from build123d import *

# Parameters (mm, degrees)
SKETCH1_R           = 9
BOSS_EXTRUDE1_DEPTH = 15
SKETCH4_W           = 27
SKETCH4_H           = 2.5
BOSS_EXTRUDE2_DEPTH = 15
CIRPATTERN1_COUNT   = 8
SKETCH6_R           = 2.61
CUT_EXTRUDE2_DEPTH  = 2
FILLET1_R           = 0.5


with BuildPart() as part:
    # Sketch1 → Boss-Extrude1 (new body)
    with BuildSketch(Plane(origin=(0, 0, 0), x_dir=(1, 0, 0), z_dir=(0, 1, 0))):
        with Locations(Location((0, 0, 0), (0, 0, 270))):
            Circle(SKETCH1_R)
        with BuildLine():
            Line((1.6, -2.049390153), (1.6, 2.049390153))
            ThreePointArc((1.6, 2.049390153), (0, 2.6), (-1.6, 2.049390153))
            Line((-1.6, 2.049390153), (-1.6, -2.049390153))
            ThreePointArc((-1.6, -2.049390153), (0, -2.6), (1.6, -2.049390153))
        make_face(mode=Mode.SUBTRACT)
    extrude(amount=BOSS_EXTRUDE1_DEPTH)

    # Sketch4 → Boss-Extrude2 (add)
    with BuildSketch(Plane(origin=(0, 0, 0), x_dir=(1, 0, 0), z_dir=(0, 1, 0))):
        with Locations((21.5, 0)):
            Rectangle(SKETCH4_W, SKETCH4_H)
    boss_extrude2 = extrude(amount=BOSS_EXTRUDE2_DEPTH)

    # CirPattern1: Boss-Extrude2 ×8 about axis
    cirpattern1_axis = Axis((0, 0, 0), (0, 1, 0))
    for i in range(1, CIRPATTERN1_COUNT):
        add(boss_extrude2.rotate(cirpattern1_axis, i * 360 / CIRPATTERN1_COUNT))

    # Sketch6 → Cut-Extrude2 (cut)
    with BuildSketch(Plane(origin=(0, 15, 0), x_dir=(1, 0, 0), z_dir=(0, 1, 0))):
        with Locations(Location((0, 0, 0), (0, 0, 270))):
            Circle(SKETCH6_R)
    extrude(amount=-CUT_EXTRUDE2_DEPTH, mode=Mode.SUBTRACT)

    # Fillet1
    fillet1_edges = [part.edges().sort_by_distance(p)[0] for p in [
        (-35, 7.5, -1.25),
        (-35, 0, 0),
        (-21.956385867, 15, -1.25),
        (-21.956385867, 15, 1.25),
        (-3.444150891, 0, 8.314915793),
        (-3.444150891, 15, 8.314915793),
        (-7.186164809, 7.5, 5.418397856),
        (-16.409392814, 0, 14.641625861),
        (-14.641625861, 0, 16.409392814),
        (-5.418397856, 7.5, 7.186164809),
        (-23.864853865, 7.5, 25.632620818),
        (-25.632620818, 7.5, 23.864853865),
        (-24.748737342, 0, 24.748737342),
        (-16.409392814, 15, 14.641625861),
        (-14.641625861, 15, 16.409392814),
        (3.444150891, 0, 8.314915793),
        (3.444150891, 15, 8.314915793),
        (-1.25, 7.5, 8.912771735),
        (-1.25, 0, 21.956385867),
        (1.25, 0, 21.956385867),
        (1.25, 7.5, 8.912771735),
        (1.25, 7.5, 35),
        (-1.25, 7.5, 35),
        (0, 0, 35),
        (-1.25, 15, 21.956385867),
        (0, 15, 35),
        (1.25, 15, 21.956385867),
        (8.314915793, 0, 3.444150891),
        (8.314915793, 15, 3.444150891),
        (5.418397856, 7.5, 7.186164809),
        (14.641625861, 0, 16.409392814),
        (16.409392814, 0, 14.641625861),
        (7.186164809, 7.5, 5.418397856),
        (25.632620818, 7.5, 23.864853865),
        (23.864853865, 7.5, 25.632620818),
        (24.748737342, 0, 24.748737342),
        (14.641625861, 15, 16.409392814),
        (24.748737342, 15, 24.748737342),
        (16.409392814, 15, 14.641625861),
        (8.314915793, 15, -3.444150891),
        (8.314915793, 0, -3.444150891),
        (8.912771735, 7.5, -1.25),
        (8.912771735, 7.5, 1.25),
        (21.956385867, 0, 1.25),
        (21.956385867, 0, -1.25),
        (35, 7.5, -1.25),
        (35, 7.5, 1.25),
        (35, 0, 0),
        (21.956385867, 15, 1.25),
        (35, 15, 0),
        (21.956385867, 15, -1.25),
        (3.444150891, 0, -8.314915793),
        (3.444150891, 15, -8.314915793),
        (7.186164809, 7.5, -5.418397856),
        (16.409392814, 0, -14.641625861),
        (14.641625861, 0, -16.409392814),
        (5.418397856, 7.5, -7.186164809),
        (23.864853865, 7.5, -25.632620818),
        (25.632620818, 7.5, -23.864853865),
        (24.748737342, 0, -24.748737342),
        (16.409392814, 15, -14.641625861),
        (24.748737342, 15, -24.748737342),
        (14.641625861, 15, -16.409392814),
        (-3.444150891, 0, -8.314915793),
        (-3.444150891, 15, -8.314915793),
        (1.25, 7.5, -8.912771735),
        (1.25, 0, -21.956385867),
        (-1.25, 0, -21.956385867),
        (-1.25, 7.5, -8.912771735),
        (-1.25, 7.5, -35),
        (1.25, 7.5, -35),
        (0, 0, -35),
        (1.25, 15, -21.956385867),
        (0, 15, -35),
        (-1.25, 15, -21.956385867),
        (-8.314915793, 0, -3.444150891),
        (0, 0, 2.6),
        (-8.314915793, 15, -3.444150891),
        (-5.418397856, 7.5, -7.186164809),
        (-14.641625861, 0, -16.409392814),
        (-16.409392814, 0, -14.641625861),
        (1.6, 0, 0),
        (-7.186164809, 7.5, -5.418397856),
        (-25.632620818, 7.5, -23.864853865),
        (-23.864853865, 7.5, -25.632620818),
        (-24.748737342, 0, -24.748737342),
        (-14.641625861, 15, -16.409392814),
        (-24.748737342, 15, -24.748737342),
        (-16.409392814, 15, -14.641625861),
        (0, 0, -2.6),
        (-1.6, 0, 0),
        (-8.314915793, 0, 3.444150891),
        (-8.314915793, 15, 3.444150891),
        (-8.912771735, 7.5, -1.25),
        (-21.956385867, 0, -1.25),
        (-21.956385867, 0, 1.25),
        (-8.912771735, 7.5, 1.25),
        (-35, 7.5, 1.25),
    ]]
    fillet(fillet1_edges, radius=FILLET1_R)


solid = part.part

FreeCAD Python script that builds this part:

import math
import FreeCAD as App
import Part
import Sketcher

V = App.Vector
Q = App.Units.Quantity


def edges_at(feature, points):
    """Names of the edges that pass closest to the given points."""
    edges = feature.Shape.Edges
    near = lambda p: min(range(len(edges)), key=lambda i: edges[i].distToShape(Part.Vertex(*p))[0])
    return sorted({f"Edge{near(p) + 1}" for p in points})

doc = App.newDocument("Part")
body = doc.addObject("PartDesign::Body", "Body")

sketch1 = body.newObject("Sketcher::SketchObject", "Sketch")
sketch1.AttachmentSupport = (doc.getObject("XZ_Plane"), [""])
sketch1.MapMode = "FlatFace"
sketch1.addGeometry([
    Part.Circle(V(0, 0, 0), V(0, 0, 1), 9),
    Part.LineSegment(V(1.6, -2, 0), V(1.6, 2, 0)),
    Part.ArcOfCircle(Part.Circle(V(0, 0, 0), V(0, 0, 1), 2.6), math.radians(52), math.radians(128)),
    Part.LineSegment(V(-1.6, 2, 0), V(-1.6, -2, 0)),
    Part.ArcOfCircle(Part.Circle(V(0, 0, 0), V(0, 0, 1), 2.6), math.radians(-128), math.radians(-52)),
], False)
sketch1.addConstraint([
    Sketcher.Constraint("Coincident", 1, 2, 2, 1),
    Sketcher.Constraint("Coincident", 2, 2, 3, 1),
    Sketcher.Constraint("Coincident", 3, 2, 4, 1),
    Sketcher.Constraint("Coincident", 4, 2, 1, 1),
    Sketcher.Constraint("Vertical", 1),
    Sketcher.Constraint("Vertical", 3),
    Sketcher.Constraint("Coincident", 0, 3, -1, 1),
    Sketcher.Constraint("Coincident", 2, 3, -1, 1),
    Sketcher.Constraint("Coincident", 4, 3, -1, 1),
    Sketcher.Constraint("Equal", 2, 4),
    Sketcher.Constraint("Horizontal", 1, 2, 2, 2),
    Sketcher.Constraint("Diameter", 0, Q("18 mm")),
    Sketcher.Constraint("Radius", 2, Q("2.6 mm")),
    Sketcher.Constraint("DistanceX", -1, 1, 1, 2, Q("1.6 mm")),
])
pad1 = body.newObject("PartDesign::Pad", "Pad")
pad1.Profile = sketch1
pad1.Length = 15
pad1.Reversed = True

sketch2 = body.newObject("Sketcher::SketchObject", "Sketch001")
sketch2.AttachmentSupport = (doc.getObject("XZ_Plane"), [""])
sketch2.MapMode = "FlatFace"
sketch2.addGeometry([
    Part.LineSegment(V(8, -1.2, 0), V(8, 1.2, 0)),
    Part.LineSegment(V(8, 1.2, 0), V(35, 1.2, 0)),
    Part.LineSegment(V(35, 1.2, 0), V(35, -1.2, 0)),
    Part.LineSegment(V(35, -1.2, 0), V(8, -1.2, 0)),
], False)
sketch2.addConstraint([
    Sketcher.Constraint("Coincident", 0, 2, 1, 1),
    Sketcher.Constraint("Coincident", 1, 2, 2, 1),
    Sketcher.Constraint("Coincident", 2, 2, 3, 1),
    Sketcher.Constraint("Coincident", 3, 2, 0, 1),
    Sketcher.Constraint("Vertical", 0),
    Sketcher.Constraint("Horizontal", 1),
    Sketcher.Constraint("Vertical", 2),
    Sketcher.Constraint("Horizontal", 3),
    Sketcher.Constraint("DistanceX", 1, 1, 1, 2, Q("27 mm")),
    Sketcher.Constraint("DistanceY", 0, 1, 0, 2, Q("2.5 mm")),
    Sketcher.Constraint("DistanceX", -1, 1, 0, 2, Q("8 mm")),
    Sketcher.Constraint("DistanceY", -1, 1, 0, 2, Q("1.25 mm")),
])
pad2 = body.newObject("PartDesign::Pad", "Pad001")
pad2.Profile = sketch2
pad2.Length = 15
pad2.Reversed = True
doc.recompute()

polarpattern = body.newObject("PartDesign::PolarPattern", "PolarPattern")
polarpattern.Originals = [pad2]
polarpattern.Axis = (doc.getObject("Y_Axis"), [""])
polarpattern.Angle = 360
polarpattern.Occurrences = 8
body.Tip = polarpattern

sketch3 = body.newObject("Sketcher::SketchObject", "Sketch002")
sketch3.AttachmentSupport = (doc.getObject("XZ_Plane"), [""])
sketch3.MapMode = "FlatFace"
sketch3.AttachmentOffset = App.Placement(V(0, 0, -15), App.Rotation())
sketch3.addGeometry(Part.Circle(V(0, 0, 0), V(0, 0, 1), 2.6), False)
sketch3.addConstraint([
    Sketcher.Constraint("Coincident", 0, 3, -1, 1),
    Sketcher.Constraint("Diameter", 0, Q("5.22 mm")),
])
pocket1 = body.newObject("PartDesign::Pocket", "Pocket")
pocket1.Profile = sketch3
pocket1.Length = 2
pocket1.Reversed = True
doc.recompute()

fillet = body.newObject("PartDesign::Fillet", "Fillet")
fillet.Base = (pocket1, edges_at(pocket1, [
    (-35, 7.5, -1.25),
    (-35, 0, 0),
    (-21.956, 15, -1.25),
    (-21.956, 15, 1.25),
    (-3.444, 0, 8.315),
    (-3.444, 15, 8.315),
    (-7.186, 7.5, 5.418),
    (-16.409, 0, 14.642),
    (-14.642, 0, 16.409),
    (-5.418, 7.5, 7.186),
    (-23.865, 7.5, 25.633),
    (-25.633, 7.5, 23.865),
    (-24.749, 0, 24.749),
    (-16.409, 15, 14.642),
    (-14.642, 15, 16.409),
    (3.444, 0, 8.315),
    (3.444, 15, 8.315),
    (-1.25, 7.5, 8.913),
    (-1.25, 0, 21.956),
    (1.25, 0, 21.956),
    (1.25, 7.5, 8.913),
    (1.25, 7.5, 35),
    (-1.25, 7.5, 35),
    (0, 0, 35),
    (-1.25, 15, 21.956),
    (0, 15, 35),
    (1.25, 15, 21.956),
    (8.315, 0, 3.444),
    (8.315, 15, 3.444),
    (5.418, 7.5, 7.186),
    (14.642, 0, 16.409),
    (16.409, 0, 14.642),
    (7.186, 7.5, 5.418),
    (25.633, 7.5, 23.865),
    (23.865, 7.5, 25.633),
    (24.749, 0, 24.749),
    (14.642, 15, 16.409),
    (24.749, 15, 24.749),
    (16.409, 15, 14.642),
    (8.315, 15, -3.444),
    (8.315, 0, -3.444),
    (8.913, 7.5, -1.25),
    (8.913, 7.5, 1.25),
    (21.956, 0, 1.25),
    (21.956, 0, -1.25),
    (35, 7.5, -1.25),
    (35, 7.5, 1.25),
    (35, 0, 0),
    (21.956, 15, 1.25),
    (35, 15, 0),
    (21.956, 15, -1.25),
    (3.444, 0, -8.315),
    (3.444, 15, -8.315),
    (7.186, 7.5, -5.418),
    (16.409, 0, -14.642),
    (14.642, 0, -16.409),
    (5.418, 7.5, -7.186),
    (23.865, 7.5, -25.633),
    (25.633, 7.5, -23.865),
    (24.749, 0, -24.749),
    (16.409, 15, -14.642),
    (24.749, 15, -24.749),
    (14.642, 15, -16.409),
    (-3.444, 0, -8.315),
    (-3.444, 15, -8.315),
    (1.25, 7.5, -8.913),
    (1.25, 0, -21.956),
    (-1.25, 0, -21.956),
    (-1.25, 7.5, -8.913),
    (-1.25, 7.5, -35),
    (1.25, 7.5, -35),
    (0, 0, -35),
    (1.25, 15, -21.956),
    (0, 15, -35),
    (-1.25, 15, -21.956),
    (-8.315, 0, -3.444),
    (0, 0, 2.6),
    (-8.315, 15, -3.444),
    (-5.418, 7.5, -7.186),
    (-14.642, 0, -16.409),
    (-16.409, 0, -14.642),
    (1.6, 0, 0),
    (-7.186, 7.5, -5.418),
    (-25.633, 7.5, -23.865),
    (-23.865, 7.5, -25.633),
    (-24.749, 0, -24.749),
    (-14.642, 15, -16.409),
    (-24.749, 15, -24.749),
    (-16.409, 15, -14.642),
    (0, 0, -2.6),
    (-1.6, 0, 0),
    (-8.315, 0, 3.444),
    (-8.315, 15, 3.444),
    (-8.913, 7.5, -1.25),
    (-21.956, 0, -1.25),
    (-21.956, 0, 1.25),
    (-8.913, 7.5, 1.25),
    (-35, 7.5, 1.25),
]))
fillet.Radius = 0.5

doc.recompute()
